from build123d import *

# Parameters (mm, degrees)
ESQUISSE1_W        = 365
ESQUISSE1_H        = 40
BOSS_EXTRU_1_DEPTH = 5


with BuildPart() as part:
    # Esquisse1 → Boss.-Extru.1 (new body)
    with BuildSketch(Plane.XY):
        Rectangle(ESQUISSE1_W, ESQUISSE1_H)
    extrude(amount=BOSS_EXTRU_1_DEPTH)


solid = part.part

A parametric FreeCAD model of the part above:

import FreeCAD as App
import Part
import Sketcher

doc = App.newDocument("Part")
body = doc.addObject("PartDesign::Body", "Body")

# Sketch on XY plane
sketch1 = body.newObject("Sketcher::SketchObject", "Sketch")
sketch1.AttachmentSupport = (doc.getObject("XY_Plane"), [""])
sketch1.MapMode = "FlatFace"
sketch1.addGeometry(Part.LineSegment(App.Vector(-182.5, 20, 0), App.Vector(-182.5, -20, 0)), False)
sketch1.addGeometry(Part.LineSegment(App.Vector(-182.5, -20, 0), App.Vector(182.5, -20, 0)), False)
sketch1.addGeometry(Part.LineSegment(App.Vector(182.5, -20, 0), App.Vector(182.5, 20, 0)), False)
sketch1.addGeometry(Part.LineSegment(App.Vector(182.5, 20, 0), App.Vector(-182.5, 20, 0)), False)
sketch1.addConstraint(Sketcher.Constraint("Coincident", 0, 2, 1, 1))
sketch1.addConstraint(Sketcher.Constraint("Coincident", 1, 2, 2, 1))
sketch1.addConstraint(Sketcher.Constraint("Coincident", 2, 2, 3, 1))
sketch1.addConstraint(Sketcher.Constraint("Coincident", 3, 2, 0, 1))
sketch1.addConstraint(Sketcher.Constraint("Vertical", 0))
sketch1.addConstraint(Sketcher.Constraint("Horizontal", 1))
sketch1.addConstraint(Sketcher.Constraint("Vertical", 2))
sketch1.addConstraint(Sketcher.Constraint("Horizontal", 3))
sketch1.addConstraint(Sketcher.Constraint("Symmetric", 0, 2, 2, 2, -1, 1))
sketch1.addConstraint(Sketcher.Constraint("DistanceX", 1, 1, 1, 2, 365.0))
sketch1.addConstraint(Sketcher.Constraint("DistanceY", 0, 2, 0, 1, 40.0))
pad1 = body.newObject("PartDesign::Pad", "Pad")
pad1.Profile = sketch1
pad1.Length = 5

doc.recompute()
